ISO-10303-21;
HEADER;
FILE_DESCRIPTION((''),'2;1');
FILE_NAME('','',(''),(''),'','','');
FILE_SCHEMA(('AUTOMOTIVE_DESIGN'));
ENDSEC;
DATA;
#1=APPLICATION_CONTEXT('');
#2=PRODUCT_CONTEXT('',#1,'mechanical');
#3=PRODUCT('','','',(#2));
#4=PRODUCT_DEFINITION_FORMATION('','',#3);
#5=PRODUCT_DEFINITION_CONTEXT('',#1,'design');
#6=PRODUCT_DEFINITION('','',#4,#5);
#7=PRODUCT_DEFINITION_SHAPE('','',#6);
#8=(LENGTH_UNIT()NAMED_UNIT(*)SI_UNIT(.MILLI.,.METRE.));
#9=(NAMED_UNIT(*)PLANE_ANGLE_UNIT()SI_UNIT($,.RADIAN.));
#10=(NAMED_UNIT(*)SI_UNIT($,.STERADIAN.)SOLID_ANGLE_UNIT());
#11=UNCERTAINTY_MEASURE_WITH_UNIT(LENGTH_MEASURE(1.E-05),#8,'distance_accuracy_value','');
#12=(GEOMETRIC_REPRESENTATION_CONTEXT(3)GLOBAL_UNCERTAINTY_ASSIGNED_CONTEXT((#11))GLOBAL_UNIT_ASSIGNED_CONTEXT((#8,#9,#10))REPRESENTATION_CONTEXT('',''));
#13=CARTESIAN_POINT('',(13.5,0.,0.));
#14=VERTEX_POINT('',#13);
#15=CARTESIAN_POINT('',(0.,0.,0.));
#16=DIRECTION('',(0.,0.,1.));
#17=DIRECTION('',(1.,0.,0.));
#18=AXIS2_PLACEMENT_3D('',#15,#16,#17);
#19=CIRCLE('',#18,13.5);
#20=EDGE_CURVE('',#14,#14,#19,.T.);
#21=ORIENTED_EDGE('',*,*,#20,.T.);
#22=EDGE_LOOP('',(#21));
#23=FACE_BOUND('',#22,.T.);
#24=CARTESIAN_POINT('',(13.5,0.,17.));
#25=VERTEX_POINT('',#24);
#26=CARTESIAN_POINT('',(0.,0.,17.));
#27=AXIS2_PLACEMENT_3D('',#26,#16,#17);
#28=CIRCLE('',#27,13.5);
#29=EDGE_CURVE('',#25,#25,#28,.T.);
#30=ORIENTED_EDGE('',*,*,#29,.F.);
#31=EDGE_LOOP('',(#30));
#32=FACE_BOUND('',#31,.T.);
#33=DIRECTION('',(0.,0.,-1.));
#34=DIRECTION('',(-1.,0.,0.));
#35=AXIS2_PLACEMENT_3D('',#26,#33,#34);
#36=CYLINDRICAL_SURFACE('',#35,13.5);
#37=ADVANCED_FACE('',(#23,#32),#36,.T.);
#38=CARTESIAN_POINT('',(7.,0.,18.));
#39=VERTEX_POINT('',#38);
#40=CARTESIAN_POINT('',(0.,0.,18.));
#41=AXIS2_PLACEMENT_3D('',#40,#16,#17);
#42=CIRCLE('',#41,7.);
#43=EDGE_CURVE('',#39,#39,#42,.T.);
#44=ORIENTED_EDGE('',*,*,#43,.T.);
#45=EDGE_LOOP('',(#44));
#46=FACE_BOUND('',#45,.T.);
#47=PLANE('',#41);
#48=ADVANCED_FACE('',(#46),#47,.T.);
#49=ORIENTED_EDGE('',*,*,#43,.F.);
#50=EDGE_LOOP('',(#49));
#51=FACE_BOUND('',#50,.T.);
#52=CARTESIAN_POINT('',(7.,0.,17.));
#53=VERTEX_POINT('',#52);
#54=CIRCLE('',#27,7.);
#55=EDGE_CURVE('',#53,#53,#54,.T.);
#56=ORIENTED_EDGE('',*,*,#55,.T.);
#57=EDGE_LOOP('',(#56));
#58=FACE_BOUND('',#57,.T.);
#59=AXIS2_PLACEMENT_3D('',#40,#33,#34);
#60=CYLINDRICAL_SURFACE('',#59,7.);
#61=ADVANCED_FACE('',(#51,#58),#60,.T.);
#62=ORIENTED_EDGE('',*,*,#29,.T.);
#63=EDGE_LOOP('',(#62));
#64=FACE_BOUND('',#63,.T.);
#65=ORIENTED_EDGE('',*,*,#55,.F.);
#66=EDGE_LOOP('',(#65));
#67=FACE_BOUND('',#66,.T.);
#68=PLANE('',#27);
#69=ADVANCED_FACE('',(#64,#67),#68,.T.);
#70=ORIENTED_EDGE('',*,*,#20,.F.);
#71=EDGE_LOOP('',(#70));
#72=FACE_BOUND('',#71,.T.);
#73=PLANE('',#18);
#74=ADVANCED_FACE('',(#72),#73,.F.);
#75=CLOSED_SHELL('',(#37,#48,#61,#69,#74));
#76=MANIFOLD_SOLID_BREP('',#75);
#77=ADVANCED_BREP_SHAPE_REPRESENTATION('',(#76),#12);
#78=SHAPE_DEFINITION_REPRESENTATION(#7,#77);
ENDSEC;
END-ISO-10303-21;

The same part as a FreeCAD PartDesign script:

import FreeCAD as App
import Part
import Sketcher

doc = App.newDocument("Part")
params = doc.addObject("Spreadsheet::Sheet", "Params")
for row, (alias, value) in enumerate([
    ("sketch1_diameter", "27 mm"),
    ("pad1_length", "17 mm"),
    ("sketch2_diameter", "14 mm"),
    ("pad2_length", "1 mm"),
], start=1):
    params.set(f"A{row}", alias)
    params.set(f"B{row}", "=" + value)
    params.setAlias(f"B{row}", alias)

body = doc.addObject("PartDesign::Body", "Body")

# Sketch on XY plane
sketch1 = body.newObject("Sketcher::SketchObject", "Sketch")
sketch1.AttachmentSupport = (doc.getObject("XY_Plane"), [""])
sketch1.MapMode = "FlatFace"
sketch1.addGeometry(Part.Circle(App.Vector(0, 0, 0), App.Vector(0, 0, 1), 14), False)
sketch1.addConstraint([
    Sketcher.Constraint("Coincident", 0, 3, -1, 1),
    Sketcher.Constraint("Diameter", 0, 27.0),
])
sketch1.setExpression("Constraints[1]", "Params.sketch1_diameter")
pad1 = body.newObject("PartDesign::Pad", "Pad")
pad1.Profile = sketch1
pad1.setExpression("Length", "Params.pad1_length")

# Sketch on XY plane
sketch2 = body.newObject("Sketcher::SketchObject", "Sketch001")
sketch2.AttachmentSupport = (doc.getObject("XY_Plane"), [""])
sketch2.MapMode = "FlatFace"
sketch2.AttachmentOffset = App.Placement(App.Vector(0, 0, 17), App.Rotation())
sketch2.addGeometry(Part.Circle(App.Vector(0, 0, 0), App.Vector(0, 0, 1), 7), False)
sketch2.addConstraint([
    Sketcher.Constraint("Coincident", 0, 3, -1, 1),
    Sketcher.Constraint("Diameter", 0, 14.0),
])
sketch2.setExpression("Constraints[1]", "Params.sketch2_diameter")
pad2 = body.newObject("PartDesign::Pad", "Pad001")
pad2.Profile = sketch2
pad2.setExpression("Length", "Params.pad2_length")

doc.recompute()
